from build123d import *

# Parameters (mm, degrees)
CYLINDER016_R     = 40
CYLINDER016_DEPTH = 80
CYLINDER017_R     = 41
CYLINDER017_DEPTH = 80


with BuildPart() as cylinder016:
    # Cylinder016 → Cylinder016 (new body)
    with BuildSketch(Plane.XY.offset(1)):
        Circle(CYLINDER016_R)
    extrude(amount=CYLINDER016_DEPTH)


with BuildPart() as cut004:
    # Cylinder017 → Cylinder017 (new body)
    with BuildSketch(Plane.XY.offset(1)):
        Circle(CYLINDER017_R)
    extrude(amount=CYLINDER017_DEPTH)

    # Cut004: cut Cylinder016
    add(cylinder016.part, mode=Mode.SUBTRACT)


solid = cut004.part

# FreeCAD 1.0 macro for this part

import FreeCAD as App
import Part
import Sketcher
Q = App.Units.Quantity

doc = App.newDocument("Part")
body = doc.addObject("PartDesign::Body", "Body")

sketch1 = body.newObject("Sketcher::SketchObject", "Sketch")
sketch1.AttachmentSupport = (doc.getObject("XY_Plane"), [""])
sketch1.MapMode = "FlatFace"
sketch1.AttachmentOffset = App.Placement(App.Vector(0, 0, 1), App.Rotation())
sketch1.addGeometry(Part.Circle(App.Vector(0, 0, 0), App.Vector(0, 0, 1), 40), False)
sketch1.addConstraint([
    Sketcher.Constraint("Coincident", 0, 3, -1, 1),
    Sketcher.Constraint("Diameter", 0, Q("80 mm")),
])
pad1 = body.newObject("PartDesign::Pad", "Pad")
pad1.Profile = sketch1
pad1.Length = 80
body2 = doc.addObject("PartDesign::Body", "Body001")

sketch2 = body2.newObject("Sketcher::SketchObject", "Sketch001")
sketch2.AttachmentSupport = (doc.getObject("XY_Plane001"), [""])
sketch2.MapMode = "FlatFace"
sketch2.AttachmentOffset = App.Placement(App.Vector(0, 0, 1), App.Rotation())
sketch2.addGeometry(Part.Circle(App.Vector(0, 0, 0), App.Vector(0, 0, 1), 41), False)
sketch2.addConstraint([
    Sketcher.Constraint("Coincident", 0, 3, -1, 1),
    Sketcher.Constraint("Diameter", 0, Q("82 mm")),
])
pad2 = body2.newObject("PartDesign::Pad", "Pad001")
pad2.Profile = sketch2
pad2.Length = 80
doc.recompute()

boolean = body2.newObject("PartDesign::Boolean", "Boolean")
boolean.Type = "Cut"
boolean.addObjects([body])

doc.recompute()
